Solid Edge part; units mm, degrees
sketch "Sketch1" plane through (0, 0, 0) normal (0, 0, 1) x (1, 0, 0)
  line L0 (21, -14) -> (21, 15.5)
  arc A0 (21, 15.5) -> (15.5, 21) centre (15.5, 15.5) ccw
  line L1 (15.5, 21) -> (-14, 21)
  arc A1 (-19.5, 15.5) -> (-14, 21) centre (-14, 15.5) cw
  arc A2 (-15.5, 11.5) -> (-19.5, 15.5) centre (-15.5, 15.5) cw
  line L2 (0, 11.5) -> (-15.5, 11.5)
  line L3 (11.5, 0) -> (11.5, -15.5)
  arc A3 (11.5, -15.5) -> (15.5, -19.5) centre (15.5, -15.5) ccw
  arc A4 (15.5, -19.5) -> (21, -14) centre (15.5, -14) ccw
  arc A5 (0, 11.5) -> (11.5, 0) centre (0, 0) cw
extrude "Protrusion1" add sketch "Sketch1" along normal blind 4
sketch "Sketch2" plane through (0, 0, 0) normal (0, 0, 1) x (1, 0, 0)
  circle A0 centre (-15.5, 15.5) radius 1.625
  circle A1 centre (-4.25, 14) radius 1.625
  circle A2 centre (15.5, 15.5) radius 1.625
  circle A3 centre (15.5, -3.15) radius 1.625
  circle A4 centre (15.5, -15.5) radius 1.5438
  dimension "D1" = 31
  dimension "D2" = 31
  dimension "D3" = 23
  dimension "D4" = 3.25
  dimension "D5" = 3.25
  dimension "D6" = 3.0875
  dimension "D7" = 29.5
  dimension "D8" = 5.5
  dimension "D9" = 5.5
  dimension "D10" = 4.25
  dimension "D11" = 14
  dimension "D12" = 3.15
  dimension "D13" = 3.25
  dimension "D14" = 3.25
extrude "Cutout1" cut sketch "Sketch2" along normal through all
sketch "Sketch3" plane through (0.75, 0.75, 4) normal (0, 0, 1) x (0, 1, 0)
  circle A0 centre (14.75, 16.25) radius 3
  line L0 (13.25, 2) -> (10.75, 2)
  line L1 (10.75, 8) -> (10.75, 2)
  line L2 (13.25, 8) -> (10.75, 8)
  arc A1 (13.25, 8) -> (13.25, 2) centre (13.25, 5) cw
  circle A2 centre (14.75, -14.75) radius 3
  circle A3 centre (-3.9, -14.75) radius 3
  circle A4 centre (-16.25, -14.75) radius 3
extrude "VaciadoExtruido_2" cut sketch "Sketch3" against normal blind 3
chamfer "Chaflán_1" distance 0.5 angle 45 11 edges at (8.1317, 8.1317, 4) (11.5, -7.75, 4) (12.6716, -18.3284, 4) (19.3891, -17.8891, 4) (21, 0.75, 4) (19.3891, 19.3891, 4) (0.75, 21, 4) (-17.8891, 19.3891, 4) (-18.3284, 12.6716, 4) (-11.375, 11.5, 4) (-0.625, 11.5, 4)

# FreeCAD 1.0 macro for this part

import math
import FreeCAD as App
import Part
import Sketcher


def edges_at(feature, points):
    """Names of the edges that pass closest to the given points."""
    edges = feature.Shape.Edges
    near = lambda p: min(range(len(edges)), key=lambda i: edges[i].distToShape(Part.Vertex(*p))[0])
    return sorted({f"Edge{near(p) + 1}" for p in points})

doc = App.newDocument("Part")
body = doc.addObject("PartDesign::Body", "Body")

sketch1 = doc.addObject("Sketcher::SketchObject", "Sketch")
body.addObject(sketch1)
sketch1.AttachmentSupport = (doc.XY_Plane, [""])
sketch1.MapMode = "FlatFace"
sketch1.addGeometry([
    Part.ArcOfCircle(Part.Circle(App.Vector(15.5, -14, 0), App.Vector(0, 0, 1), 5.5), math.radians(-90), math.radians(0)),
    Part.LineSegment(App.Vector(21, -14, 0), App.Vector(21, 15.5, 0)),
    Part.ArcOfCircle(Part.Circle(App.Vector(15.5, 15.5, 0), App.Vector(0, 0, 1), 5.5), math.radians(0), math.radians(90)),
    Part.LineSegment(App.Vector(15.5, 21, 0), App.Vector(-14, 21, 0)),
    Part.ArcOfCircle(Part.Circle(App.Vector(-14, 15.5, 0), App.Vector(0, 0, 1), 5.5), math.radians(90), math.radians(180)),
    Part.ArcOfCircle(Part.Circle(App.Vector(-15.5, 15.5, 0), App.Vector(0, 0, 1), 4), math.radians(180), math.radians(270)),
    Part.LineSegment(App.Vector(-15.5, 11.5, 0), App.Vector(0, 11.5, 0)),
    Part.ArcOfCircle(Part.Circle(App.Vector(0, 0, 0), App.Vector(0, 0, 1), 11.5), math.radians(0), math.radians(90)),
    Part.LineSegment(App.Vector(11.5, 0, 0), App.Vector(11.5, -15.5, 0)),
    Part.ArcOfCircle(Part.Circle(App.Vector(15.5, -15.5, 0), App.Vector(0, 0, 1), 4), math.radians(180), math.radians(270)),
], False)
sketch1.addConstraint([
    Sketcher.Constraint("Tangent", 0, 2, 1, 1),
    Sketcher.Constraint("Tangent", 1, 2, 2, 1),
    Sketcher.Constraint("Tangent", 2, 2, 3, 1),
    Sketcher.Constraint("Tangent", 3, 2, 4, 1),
    Sketcher.Constraint("Tangent", 4, 2, 5, 1),
    Sketcher.Constraint("Tangent", 5, 2, 6, 1),
    Sketcher.Constraint("Tangent", 6, 2, 7, 2),
    Sketcher.Constraint("Tangent", 7, 1, 8, 1),
    Sketcher.Constraint("Tangent", 8, 2, 9, 1),
    Sketcher.Constraint("Tangent", 9, 2, 0, 1),
    Sketcher.Constraint("Vertical", 1),
    Sketcher.Constraint("Horizontal", 3),
    Sketcher.Constraint("Horizontal", 6),
    Sketcher.Constraint("Vertical", 8),
    Sketcher.Constraint("Coincident", 7, 3, -1, 1),
    Sketcher.Constraint("Equal", 0, 2),
    Sketcher.Constraint("Equal", 2, 4),
    Sketcher.Constraint("Equal", 5, 9),
    Sketcher.Constraint("Symmetric", 5, 3, 9, 3, -1, 1),
    Sketcher.Constraint("Symmetric", 2, 3, 5, 3, -2),
    Sketcher.Constraint("Radius", 5, 4.0),
    Sketcher.Constraint("Radius", 0, 5.5),
    Sketcher.Constraint("Radius", 7, 11.5),
])
pad1 = doc.addObject("PartDesign::Pad", "Pad")
body.addObject(pad1)
pad1.Profile = sketch1
pad1.Length = 4

sketch2 = doc.addObject("Sketcher::SketchObject", "Sketch001")
body.addObject(sketch2)
sketch2.AttachmentSupport = (doc.XY_Plane, [""])
sketch2.MapMode = "FlatFace"
sketch2.addGeometry([
    Part.Circle(App.Vector(-15.5, 15.5, 0), App.Vector(0, 0, 1), 1.625),
    Part.Circle(App.Vector(-4.25, 14, 0), App.Vector(0, 0, 1), 1.625),
    Part.Circle(App.Vector(15.5, 15.5, 0), App.Vector(0, 0, 1), 1.625),
    Part.Circle(App.Vector(15.5, -3.15, 0), App.Vector(0, 0, 1), 1.625),
    Part.Circle(App.Vector(15.5, -15.5, 0), App.Vector(0, 0, 1), 1.5438),
], False)
sketch2.addConstraint([
    Sketcher.Constraint("Equal", 0, 1),
    Sketcher.Constraint("Equal", 1, 2),
    Sketcher.Constraint("Equal", 2, 3),
    Sketcher.Constraint("Symmetric", 0, 3, 4, 3, -1, 1),
    Sketcher.Constraint("Symmetric", 0, 3, 2, 3, -2),
    Sketcher.Constraint("Vertical", 2, 3, 3, 3),
    Sketcher.Constraint("Diameter", 0, 3.25),
    Sketcher.Constraint("DistanceY", -1, 1, 1, 3, 14.0),
    Sketcher.Constraint("DistanceX", 0, 3, 2, 3, 31.0),
    Sketcher.Constraint("DistanceY", 4, 3, 2, 3, 31.0),
    Sketcher.Constraint("Diameter", 4, 3.0876),
    Sketcher.Constraint("DistanceX", 1, 3, -1, 1, 4.25),
    Sketcher.Constraint("DistanceY", 3, 3, -1, 1, 3.15),
])
pocket1 = doc.addObject("PartDesign::Pocket", "Pocket")
body.addObject(pocket1)
pocket1.Profile = sketch2
pocket1.Type = "ThroughAll"
pocket1.Reversed = True

sketch3 = doc.addObject("Sketcher::SketchObject", "Sketch002")
body.addObject(sketch3)
sketch3.AttachmentSupport = (doc.XY_Plane, [""])
sketch3.MapMode = "FlatFace"
sketch3.AttachmentOffset = App.Placement(App.Vector(0, 0, 4), App.Rotation())
sketch3.addGeometry([
    Part.Circle(App.Vector(-15.5, 15.5, 0), App.Vector(0, 0, 1), 3),
    Part.LineSegment(App.Vector(-1.25, 11.5, 0), App.Vector(-1.25, 14, 0)),
    Part.ArcOfCircle(Part.Circle(App.Vector(-4.25, 14, 0), App.Vector(0, 0, 1), 3), math.radians(0), math.radians(180)),
    Part.LineSegment(App.Vector(-7.25, 14, 0), App.Vector(-7.25, 11.5, 0)),
    Part.LineSegment(App.Vector(-7.25, 11.5, 0), App.Vector(-1.25, 11.5, 0)),
    Part.Circle(App.Vector(15.5, 15.5, 0), App.Vector(0, 0, 1), 3),
    Part.Circle(App.Vector(15.5, -3.15, 0), App.Vector(0, 0, 1), 3),
    Part.Circle(App.Vector(15.5, -15.5, 0), App.Vector(0, 0, 1), 3),
], False)
sketch3.addConstraint([
    Sketcher.Constraint("Tangent", 1, 2, 2, 1),
    Sketcher.Constraint("Tangent", 2, 2, 3, 1),
    Sketcher.Constraint("Coincident", 3, 2, 4, 1),
    Sketcher.Constraint("Coincident", 4, 2, 1, 1),
    Sketcher.Constraint("Vertical", 1),
    Sketcher.Constraint("Vertical", 3),
    Sketcher.Constraint("Horizontal", 4),
    Sketcher.Constraint("Equal", 0, 2),
    Sketcher.Constraint("Equal", 2, 5),
    Sketcher.Constraint("Equal", 5, 6),
    Sketcher.Constraint("Equal", 6, 7),
    Sketcher.Constraint("Symmetric", 0, 3, 7, 3, -1, 1),
    Sketcher.Constraint("Symmetric", 0, 3, 5, 3, -2),
    Sketcher.Constraint("Vertical", 5, 3, 6, 3),
    Sketcher.Constraint("Diameter", 0, 6.0),
    Sketcher.Constraint("DistanceY", 1, 1, 1, 2, 2.5),
    Sketcher.Constraint("DistanceY", -1, 1, 2, 3, 14.0),
    Sketcher.Constraint("DistanceX", 0, 3, 5, 3, 31.0),
    Sketcher.Constraint("DistanceY", 7, 3, 5, 3, 31.0),
    Sketcher.Constraint("DistanceX", 2, 3, -1, 1, 4.25),
    Sketcher.Constraint("DistanceY", 6, 3, -1, 1, 3.15),
])
pocket2 = doc.addObject("PartDesign::Pocket", "Pocket001")
body.addObject(pocket2)
pocket2.Profile = sketch3
pocket2.Length = 3
doc.recompute()

chamfer = doc.addObject("PartDesign::Chamfer", "Chamfer")
body.addObject(chamfer)
chamfer.Base = (pocket2, edges_at(pocket2, [
    (8.132, 8.132, 4),
    (11.5, -7.75, 4),
    (12.672, -18.328, 4),
    (19.389, -17.889, 4),
    (21, 0.75, 4),
    (19.389, 19.389, 4),
    (0.75, 21, 4),
    (-17.889, 19.389, 4),
    (-18.328, 12.672, 4),
    (-11.375, 11.5, 4),
    (-0.625, 11.5, 4),
]))
chamfer.Size = 0.5

doc.recompute()
